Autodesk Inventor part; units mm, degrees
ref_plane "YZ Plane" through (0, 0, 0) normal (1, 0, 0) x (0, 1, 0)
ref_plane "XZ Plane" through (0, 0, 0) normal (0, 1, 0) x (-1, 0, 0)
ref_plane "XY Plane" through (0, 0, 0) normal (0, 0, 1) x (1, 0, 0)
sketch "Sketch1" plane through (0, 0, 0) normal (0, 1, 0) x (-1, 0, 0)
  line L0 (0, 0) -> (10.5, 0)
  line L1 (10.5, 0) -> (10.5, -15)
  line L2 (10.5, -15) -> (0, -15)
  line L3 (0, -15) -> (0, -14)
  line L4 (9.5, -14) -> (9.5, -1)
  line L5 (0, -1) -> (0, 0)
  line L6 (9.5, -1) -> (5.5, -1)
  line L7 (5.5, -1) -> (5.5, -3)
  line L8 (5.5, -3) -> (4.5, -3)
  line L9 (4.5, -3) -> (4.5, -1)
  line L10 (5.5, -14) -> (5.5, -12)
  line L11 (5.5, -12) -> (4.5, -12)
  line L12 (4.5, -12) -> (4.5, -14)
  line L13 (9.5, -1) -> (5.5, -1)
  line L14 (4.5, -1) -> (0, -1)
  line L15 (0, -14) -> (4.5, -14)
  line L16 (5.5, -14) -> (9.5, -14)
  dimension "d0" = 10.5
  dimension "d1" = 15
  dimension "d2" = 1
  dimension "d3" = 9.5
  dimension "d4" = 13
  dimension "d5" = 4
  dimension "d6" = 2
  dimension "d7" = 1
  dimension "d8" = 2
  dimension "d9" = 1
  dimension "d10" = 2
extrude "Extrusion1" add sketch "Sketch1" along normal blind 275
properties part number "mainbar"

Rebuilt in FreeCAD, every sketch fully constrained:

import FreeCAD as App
import Part
import Sketcher
Q = App.Units.Quantity


def add_polygon(sketch, points):
    """Adds a closed chain of lines whose ends are joined by coincident constraints."""
    first, n = sketch.GeometryCount, len(points)
    for a, b in zip(points, points[1:] + points[:1]):
        sketch.addGeometry(Part.LineSegment(App.Vector(*a, 0), App.Vector(*b, 0)), False)
    for i in range(n):
        sketch.addConstraint(Sketcher.Constraint("Coincident", first + i, 2, first + (i + 1) % n, 1))

doc = App.newDocument("Part")
body = doc.addObject("PartDesign::Body", "Body")

sketch1 = doc.addObject("Sketcher::SketchObject", "Sketch")
body.addObject(sketch1)
sketch1.AttachmentSupport = (doc.XZ_Plane, [""])
sketch1.MapMode = "FlatFace"
add_polygon(sketch1, [(-10.5, 0), (0, 0), (0, -1), (-4.5, -1), (-4.5, -3), (-5.5, -3), (-5.5, -1), (-9.5, -1), (-9.5, -14), (-5.5, -14), (-5.5, -12), (-4.5, -12), (-4.5, -14), (0, -14), (0, -15), (-10.5, -15)])
sketch1.addConstraint(Sketcher.Constraint("Horizontal", 0))
sketch1.addConstraint(Sketcher.Constraint("Vertical", 1))
sketch1.addConstraint(Sketcher.Constraint("Horizontal", 2))
sketch1.addConstraint(Sketcher.Constraint("Vertical", 3))
sketch1.addConstraint(Sketcher.Constraint("Horizontal", 4))
sketch1.addConstraint(Sketcher.Constraint("Vertical", 5))
sketch1.addConstraint(Sketcher.Constraint("Horizontal", 6))
sketch1.addConstraint(Sketcher.Constraint("Vertical", 7))
sketch1.addConstraint(Sketcher.Constraint("Horizontal", 8))
sketch1.addConstraint(Sketcher.Constraint("Vertical", 9))
sketch1.addConstraint(Sketcher.Constraint("Horizontal", 10))
sketch1.addConstraint(Sketcher.Constraint("Vertical", 11))
sketch1.addConstraint(Sketcher.Constraint("Horizontal", 12))
sketch1.addConstraint(Sketcher.Constraint("Vertical", 13))
sketch1.addConstraint(Sketcher.Constraint("Horizontal", 14))
sketch1.addConstraint(Sketcher.Constraint("Vertical", 15))
sketch1.addConstraint(Sketcher.Constraint("Coincident", 0, 2, -1, 1))
sketch1.addConstraint(Sketcher.Constraint("PointOnObject", 12, 2, -2))
sketch1.addConstraint(Sketcher.Constraint("Horizontal", 2, 2, 5, 2))
sketch1.addConstraint(Sketcher.Constraint("Horizontal", 8, 2, 11, 2))
sketch1.addConstraint(Sketcher.Constraint("Vertical", 5, 2, 8, 2))
sketch1.addConstraint(Sketcher.Constraint("Vertical", 3, 2, 10, 2))
sketch1.addConstraint(Sketcher.Constraint("Equal", 10, 1))
sketch1.addConstraint(Sketcher.Constraint("Equal", 5, 9))
sketch1.addConstraint(Sketcher.Constraint("Equal", 1, 13))
sketch1.addConstraint(Sketcher.Constraint("DistanceX", 4, 2, 4, 1, Q("1 mm")))
sketch1.addConstraint(Sketcher.Constraint("DistanceX", 6, 2, 6, 1, Q("4 mm")))
sketch1.addConstraint(Sketcher.Constraint("DistanceY", 3, 2, 3, 1, Q("2 mm")))
sketch1.addConstraint(Sketcher.Constraint("DistanceY", 7, 2, 7, 1, Q("13 mm")))
sketch1.addConstraint(Sketcher.Constraint("DistanceX", 0, 1, 0, 2, Q("10.5 mm")))
sketch1.addConstraint(Sketcher.Constraint("DistanceX", 14, 2, 7, 2, Q("1 mm")))
pad1 = doc.addObject("PartDesign::Pad", "Pad")
body.addObject(pad1)
pad1.Profile = sketch1
pad1.Length = 275
pad1.Reversed = True

doc.recompute()
